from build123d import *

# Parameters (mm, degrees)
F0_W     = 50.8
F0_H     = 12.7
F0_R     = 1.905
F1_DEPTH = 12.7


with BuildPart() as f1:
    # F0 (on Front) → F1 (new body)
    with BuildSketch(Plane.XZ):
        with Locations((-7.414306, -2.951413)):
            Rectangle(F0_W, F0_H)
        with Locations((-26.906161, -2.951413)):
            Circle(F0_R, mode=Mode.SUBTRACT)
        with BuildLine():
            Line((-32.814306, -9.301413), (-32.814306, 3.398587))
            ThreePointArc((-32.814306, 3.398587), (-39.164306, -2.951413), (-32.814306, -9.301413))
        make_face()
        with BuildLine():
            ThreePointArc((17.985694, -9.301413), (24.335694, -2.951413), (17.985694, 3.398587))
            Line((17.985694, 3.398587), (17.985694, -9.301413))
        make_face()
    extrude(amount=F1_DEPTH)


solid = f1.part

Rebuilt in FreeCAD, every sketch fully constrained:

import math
import FreeCAD as App
import Part
import Sketcher

V = App.Vector
Q = App.Units.Quantity

doc = App.newDocument("Part")
body = doc.addObject("PartDesign::Body", "Body")

sketch1 = body.newObject("Sketcher::SketchObject", "Sketch")
sketch1.AttachmentSupport = (doc.getObject("XZ_Plane"), [""])
sketch1.MapMode = "FlatFace"
sketch1.addGeometry(Part.LineSegment(V(-32.8, -9.3, 0), V(18, -9.3, 0)), False)
sketch1.addGeometry(Part.ArcOfCircle(Part.Circle(V(18, -3, 0), V(0, 0, 1), 6.3), math.radians(-90), math.radians(90)), False)
sketch1.addGeometry(Part.LineSegment(V(18, 3.4, 0), V(-32.8, 3.4, 0)), False)
sketch1.addGeometry(Part.ArcOfCircle(Part.Circle(V(-32.8, -3, 0), V(0, 0, 1), 6.3), math.radians(90), math.radians(270)), False)
sketch1.addGeometry(Part.Circle(V(-26.9, -3, 0), V(0, 0, 1), 1.9), False)
sketch1.addConstraint(Sketcher.Constraint("Tangent", 0, 2, 1, 1))
sketch1.addConstraint(Sketcher.Constraint("Tangent", 1, 2, 2, 1))
sketch1.addConstraint(Sketcher.Constraint("Tangent", 2, 2, 3, 1))
sketch1.addConstraint(Sketcher.Constraint("Tangent", 3, 2, 0, 1))
sketch1.addConstraint(Sketcher.Constraint("Horizontal", 0))
sketch1.addConstraint(Sketcher.Constraint("Horizontal", 2))
sketch1.addConstraint(Sketcher.Constraint("Horizontal", 3, 3, 4, 3))
sketch1.addConstraint(Sketcher.Constraint("Diameter", 4, Q("0.15 in")))
sketch1.addConstraint(Sketcher.Constraint("DistanceX", 0, 1, 0, 2, Q("2 in")))
sketch1.addConstraint(Sketcher.Constraint("Radius", 1, Q("0.25 in")))
sketch1.addConstraint(Sketcher.Constraint("DistanceX", 4, 3, -1, 1, 26.906161))
sketch1.addConstraint(Sketcher.Constraint("DistanceX", -1, 1, 1, 3, 17.985694))
sketch1.addConstraint(Sketcher.Constraint("DistanceY", 1, 3, -1, 1, 2.951413))
pad1 = body.newObject("PartDesign::Pad", "Pad")
pad1.Profile = sketch1
pad1.Length = Q("0.5 in")

doc.recompute()
